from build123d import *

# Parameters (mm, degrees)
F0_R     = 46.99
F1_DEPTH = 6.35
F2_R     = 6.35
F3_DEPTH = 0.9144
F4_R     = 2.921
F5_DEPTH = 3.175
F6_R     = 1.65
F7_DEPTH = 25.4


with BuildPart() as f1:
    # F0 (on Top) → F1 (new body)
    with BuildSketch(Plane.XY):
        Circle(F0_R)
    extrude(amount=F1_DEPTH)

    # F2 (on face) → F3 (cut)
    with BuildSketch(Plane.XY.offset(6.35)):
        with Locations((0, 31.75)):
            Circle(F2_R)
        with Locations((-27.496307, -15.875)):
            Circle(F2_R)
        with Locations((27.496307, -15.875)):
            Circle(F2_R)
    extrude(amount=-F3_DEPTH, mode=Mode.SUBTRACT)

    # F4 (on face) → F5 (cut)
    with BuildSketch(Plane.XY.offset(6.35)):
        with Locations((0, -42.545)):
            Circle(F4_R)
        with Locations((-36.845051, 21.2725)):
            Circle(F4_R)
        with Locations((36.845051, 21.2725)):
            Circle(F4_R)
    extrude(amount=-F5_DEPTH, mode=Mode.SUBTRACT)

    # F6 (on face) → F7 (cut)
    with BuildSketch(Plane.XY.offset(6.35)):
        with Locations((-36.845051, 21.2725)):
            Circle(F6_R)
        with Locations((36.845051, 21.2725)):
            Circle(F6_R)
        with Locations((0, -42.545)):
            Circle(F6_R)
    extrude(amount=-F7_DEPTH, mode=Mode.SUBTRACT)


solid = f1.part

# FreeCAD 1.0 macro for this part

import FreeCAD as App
import Part
import Sketcher
Q = App.Units.Quantity

doc = App.newDocument("Part")
body = doc.addObject("PartDesign::Body", "Body")

# Sketch on XY plane
sketch1 = body.newObject("Sketcher::SketchObject", "Sketch")
sketch1.AttachmentSupport = (doc.getObject("XY_Plane"), [""])
sketch1.MapMode = "FlatFace"
sketch1.addGeometry(Part.Circle(App.Vector(0, 0, 0), App.Vector(0, 0, 1), 47), False)
sketch1.addConstraint([
    Sketcher.Constraint("Coincident", 0, 3, -1, 1),
    Sketcher.Constraint("Diameter", 0, Q("3.7 in")),
])
pad1 = body.newObject("PartDesign::Pad", "Pad")
pad1.Profile = sketch1
pad1.Length = Q("0.25 in")

# Sketch on XY plane
sketch2 = body.newObject("Sketcher::SketchObject", "Sketch001")
sketch2.AttachmentSupport = (doc.getObject("XY_Plane"), [""])
sketch2.MapMode = "FlatFace"
sketch2.AttachmentOffset = App.Placement(App.Vector(0, 0, 0.25 * 25.4), App.Rotation())
sketch2.addGeometry([
    Part.Circle(App.Vector(0, 32, 0), App.Vector(0, 0, 1), 6),
    Part.Circle(App.Vector(-27, -16, 0), App.Vector(0, 0, 1), 6),
    Part.Circle(App.Vector(27, -16, 0), App.Vector(0, 0, 1), 6),
], False)
sketch2.addConstraint([
    Sketcher.Constraint("Equal", 0, 1),
    Sketcher.Constraint("Equal", 1, 2),
    Sketcher.Constraint("Symmetric", 1, 3, 2, 3, -2),
    Sketcher.Constraint("PointOnObject", 0, 3, -2),
    Sketcher.Constraint("Diameter", 0, Q("0.5 in")),
    Sketcher.Constraint("DistanceY", -1, 1, 0, 3, Q("1.25 in")),
    Sketcher.Constraint("DistanceY", 1, 3, -1, 1, Q("0.625 in")),
    Sketcher.Constraint("DistanceX", 1, 3, -1, 1, Q("27.496307 mm")),
])
pocket1 = body.newObject("PartDesign::Pocket", "Pocket")
pocket1.Profile = sketch2
pocket1.Length = Q("0.036 in")

# Sketch on XY plane
sketch3 = body.newObject("Sketcher::SketchObject", "Sketch002")
sketch3.AttachmentSupport = (doc.getObject("XY_Plane"), [""])
sketch3.MapMode = "FlatFace"
sketch3.AttachmentOffset = App.Placement(App.Vector(0, 0, 0.25 * 25.4), App.Rotation())
sketch3.addGeometry([
    Part.Circle(App.Vector(0, -42.5, 0), App.Vector(0, 0, 1), 2.9),
    Part.Circle(App.Vector(-36.8, 21.3, 0), App.Vector(0, 0, 1), 2.9),
    Part.Circle(App.Vector(36.8, 21.3, 0), App.Vector(0, 0, 1), 2.9),
], False)
sketch3.addConstraint([
    Sketcher.Constraint("Equal", 0, 1),
    Sketcher.Constraint("Equal", 1, 2),
    Sketcher.Constraint("Symmetric", 1, 3, 2, 3, -2),
    Sketcher.Constraint("PointOnObject", 0, 3, -2),
    Sketcher.Constraint("Diameter", 0, Q("0.23 in")),
    Sketcher.Constraint("DistanceY", 0, 3, -1, 1, Q("1.675 in")),
    Sketcher.Constraint("DistanceY", -1, 1, 1, 3, Q("0.8375 in")),
    Sketcher.Constraint("DistanceX", 1, 3, 2, 3, Q("73.690102 mm")),
])
pocket2 = body.newObject("PartDesign::Pocket", "Pocket001")
pocket2.Profile = sketch3
pocket2.Length = Q("0.125 in")

# Sketch on XY plane
sketch4 = body.newObject("Sketcher::SketchObject", "Sketch003")
sketch4.AttachmentSupport = (doc.getObject("XY_Plane"), [""])
sketch4.MapMode = "FlatFace"
sketch4.AttachmentOffset = App.Placement(App.Vector(0, 0, 0.25 * 25.4), App.Rotation())
sketch4.addGeometry([
    Part.Circle(App.Vector(-36.8, 21.3, 0), App.Vector(0, 0, 1), 1.6),
    Part.Circle(App.Vector(36.8, 21.3, 0), App.Vector(0, 0, 1), 1.6),
    Part.Circle(App.Vector(0, -42.5, 0), App.Vector(0, 0, 1), 1.6),
], False)
sketch4.addConstraint([
    Sketcher.Constraint("Equal", 0, 1),
    Sketcher.Constraint("Equal", 1, 2),
    Sketcher.Constraint("Symmetric", 0, 3, 1, 3, -2),
    Sketcher.Constraint("PointOnObject", 2, 3, -2),
    Sketcher.Constraint("Diameter", 0, Q("3.3 mm")),
    Sketcher.Constraint("DistanceY", 2, 3, -1, 1, Q("1.675 in")),
    Sketcher.Constraint("DistanceY", -1, 1, 0, 3, Q("0.8375 in")),
    Sketcher.Constraint("DistanceX", 0, 3, 1, 3, Q("73.690102 mm")),
])
pocket3 = body.newObject("PartDesign::Pocket", "Pocket002")
pocket3.Profile = sketch4
pocket3.Length = Q("1 in")

doc.recompute()
